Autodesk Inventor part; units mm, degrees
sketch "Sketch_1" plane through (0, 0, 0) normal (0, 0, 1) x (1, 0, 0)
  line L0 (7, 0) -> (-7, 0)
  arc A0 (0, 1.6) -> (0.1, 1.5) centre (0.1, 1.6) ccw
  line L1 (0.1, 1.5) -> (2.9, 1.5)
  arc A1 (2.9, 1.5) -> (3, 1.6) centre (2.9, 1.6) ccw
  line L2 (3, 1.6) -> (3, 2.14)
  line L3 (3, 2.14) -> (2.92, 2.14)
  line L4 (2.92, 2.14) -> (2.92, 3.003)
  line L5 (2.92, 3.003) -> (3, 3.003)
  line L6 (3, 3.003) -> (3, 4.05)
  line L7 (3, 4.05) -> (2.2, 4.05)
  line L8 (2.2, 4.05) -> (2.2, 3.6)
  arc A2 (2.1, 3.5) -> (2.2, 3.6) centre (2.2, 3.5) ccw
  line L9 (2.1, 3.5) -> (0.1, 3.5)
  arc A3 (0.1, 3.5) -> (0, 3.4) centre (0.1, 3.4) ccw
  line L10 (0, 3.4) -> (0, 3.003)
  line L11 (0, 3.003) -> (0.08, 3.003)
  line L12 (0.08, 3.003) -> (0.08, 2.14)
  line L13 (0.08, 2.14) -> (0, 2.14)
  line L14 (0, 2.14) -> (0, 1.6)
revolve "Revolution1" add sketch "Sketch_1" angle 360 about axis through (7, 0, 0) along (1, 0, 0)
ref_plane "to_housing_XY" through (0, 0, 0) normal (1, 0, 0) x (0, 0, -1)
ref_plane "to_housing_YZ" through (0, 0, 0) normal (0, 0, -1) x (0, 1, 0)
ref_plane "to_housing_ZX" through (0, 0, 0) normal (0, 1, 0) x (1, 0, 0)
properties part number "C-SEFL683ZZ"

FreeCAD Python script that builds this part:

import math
import FreeCAD as App
import Part
import Sketcher

V = App.Vector
Q = App.Units.Quantity

doc = App.newDocument("Part")
body = doc.addObject("PartDesign::Body", "Body")

# Sketch on XY plane
sketch1 = doc.addObject("Sketcher::SketchObject", "Sketch")
body.addObject(sketch1)
sketch1.AttachmentSupport = (doc.XY_Plane, [""])
sketch1.MapMode = "FlatFace"
sketch1.addGeometry(Part.LineSegment(V(0, 2.14, 0), V(0, 1.6, 0)), False)
sketch1.addGeometry(Part.ArcOfCircle(Part.Circle(V(0.1, 1.6, 0), V(0, 0, 1), 0.1), math.radians(180), math.radians(270)), False)
sketch1.addGeometry(Part.LineSegment(V(0.1, 1.5, 0), V(2.9, 1.5, 0)), False)
sketch1.addGeometry(Part.ArcOfCircle(Part.Circle(V(2.9, 1.6, 0), V(0, 0, 1), 0.1), math.radians(-90), math.radians(0)), False)
sketch1.addGeometry(Part.LineSegment(V(3, 1.6, 0), V(3, 2.14, 0)), False)
sketch1.addGeometry(Part.LineSegment(V(3, 2.14, 0), V(2.92, 2.14, 0)), False)
sketch1.addGeometry(Part.LineSegment(V(2.92, 2.14, 0), V(2.92, 3.003, 0)), False)
sketch1.addGeometry(Part.LineSegment(V(2.92, 3.003, 0), V(3, 3.003, 0)), False)
sketch1.addGeometry(Part.LineSegment(V(3, 3.003, 0), V(3, 4.05, 0)), False)
sketch1.addGeometry(Part.LineSegment(V(3, 4.05, 0), V(2.2, 4.05, 0)), False)
sketch1.addGeometry(Part.LineSegment(V(2.2, 4.05, 0), V(2.2, 3.6, 0)), False)
sketch1.addGeometry(Part.ArcOfCircle(Part.Circle(V(2.2, 3.5, 0), V(0, 0, 1), 0.1), math.radians(180), math.radians(450)), False)
sketch1.addGeometry(Part.LineSegment(V(2.1, 3.5, 0), V(0.1, 3.5, 0)), False)
sketch1.addGeometry(Part.ArcOfCircle(Part.Circle(V(0.1, 3.4, 0), V(0, 0, 1), 0.1), math.radians(90), math.radians(180)), False)
sketch1.addGeometry(Part.LineSegment(V(0, 3.4, 0), V(0, 3.003, 0)), False)
sketch1.addGeometry(Part.LineSegment(V(0, 3.003, 0), V(0.08, 3.003, 0)), False)
sketch1.addGeometry(Part.LineSegment(V(0.08, 3.003, 0), V(0.08, 2.14, 0)), False)
sketch1.addGeometry(Part.LineSegment(V(0.08, 2.14, 0), V(0, 2.14, 0)), False)
sketch1.addConstraint(Sketcher.Constraint("Tangent", 0, 2, 1, 1))
sketch1.addConstraint(Sketcher.Constraint("Tangent", 1, 2, 2, 1))
sketch1.addConstraint(Sketcher.Constraint("Tangent", 2, 2, 3, 1))
sketch1.addConstraint(Sketcher.Constraint("Tangent", 3, 2, 4, 1))
sketch1.addConstraint(Sketcher.Constraint("Coincident", 4, 2, 5, 1))
sketch1.addConstraint(Sketcher.Constraint("Coincident", 5, 2, 6, 1))
sketch1.addConstraint(Sketcher.Constraint("Coincident", 6, 2, 7, 1))
sketch1.addConstraint(Sketcher.Constraint("Coincident", 7, 2, 8, 1))
sketch1.addConstraint(Sketcher.Constraint("Coincident", 8, 2, 9, 1))
sketch1.addConstraint(Sketcher.Constraint("Coincident", 9, 2, 10, 1))
sketch1.addConstraint(Sketcher.Constraint("Coincident", 10, 2, 11, 2))
sketch1.addConstraint(Sketcher.Constraint("Coincident", 11, 1, 12, 1))
sketch1.addConstraint(Sketcher.Constraint("Tangent", 12, 2, 13, 1))
sketch1.addConstraint(Sketcher.Constraint("Tangent", 13, 2, 14, 1))
sketch1.addConstraint(Sketcher.Constraint("Coincident", 14, 2, 15, 1))
sketch1.addConstraint(Sketcher.Constraint("Coincident", 15, 2, 16, 1))
sketch1.addConstraint(Sketcher.Constraint("Coincident", 16, 2, 17, 1))
sketch1.addConstraint(Sketcher.Constraint("Coincident", 17, 2, 0, 1))
sketch1.addConstraint(Sketcher.Constraint("Vertical", 0))
sketch1.addConstraint(Sketcher.Constraint("Horizontal", 2))
sketch1.addConstraint(Sketcher.Constraint("Vertical", 4))
sketch1.addConstraint(Sketcher.Constraint("Horizontal", 5))
sketch1.addConstraint(Sketcher.Constraint("Vertical", 6))
sketch1.addConstraint(Sketcher.Constraint("Horizontal", 7))
sketch1.addConstraint(Sketcher.Constraint("Vertical", 8))
sketch1.addConstraint(Sketcher.Constraint("Horizontal", 9))
sketch1.addConstraint(Sketcher.Constraint("Vertical", 10))
sketch1.addConstraint(Sketcher.Constraint("Horizontal", 12))
sketch1.addConstraint(Sketcher.Constraint("Vertical", 14))
sketch1.addConstraint(Sketcher.Constraint("Horizontal", 15))
sketch1.addConstraint(Sketcher.Constraint("Vertical", 16))
sketch1.addConstraint(Sketcher.Constraint("Horizontal", 17))
sketch1.addConstraint(Sketcher.Constraint("Equal", 1, 3))
sketch1.addConstraint(Sketcher.Constraint("Equal", 3, 11))
sketch1.addConstraint(Sketcher.Constraint("Equal", 11, 13))
sketch1.addConstraint(Sketcher.Constraint("PointOnObject", 0, 2, -2))
sketch1.addConstraint(Sketcher.Constraint("PointOnObject", 13, 2, -2))
sketch1.addConstraint(Sketcher.Constraint("Horizontal", 7, 2, 14, 2))
sketch1.addConstraint(Sketcher.Constraint("Horizontal", 5, 2, 16, 2))
sketch1.addConstraint(Sketcher.Constraint("Vertical", 4, 2, 7, 2))
sketch1.addConstraint(Sketcher.Constraint("Vertical", 11, 3, 9, 2))
sketch1.addConstraint(Sketcher.Constraint("Equal", 7, 15))
sketch1.addConstraint(Sketcher.Constraint("Radius", 1, Q("0.1 mm")))
sketch1.addConstraint(Sketcher.Constraint("DistanceX", 12, 2, 12, 1, Q("2 mm")))
sketch1.addConstraint(Sketcher.Constraint("DistanceX", 2, 1, 2, 2, Q("2.8 mm")))
sketch1.addConstraint(Sketcher.Constraint("DistanceY", 1, 2, 11, 3, Q("2 mm")))
sketch1.addConstraint(Sketcher.Constraint("DistanceY", 1, 2, 12, 2, Q("2 mm")))
sketch1.addConstraint(Sketcher.Constraint("DistanceX", 5, 2, 5, 1, Q("0.08 mm")))
sketch1.addConstraint(Sketcher.Constraint("DistanceY", 0, 2, 0, 1, Q("0.54 mm")))
sketch1.addConstraint(Sketcher.Constraint("DistanceY", 10, 2, 10, 1, Q("0.45 mm")))
sketch1.addConstraint(Sketcher.Constraint("DistanceY", -1, 1, 1, 3, Q("1.6 mm")))
sketch1.addConstraint(Sketcher.Constraint("DistanceY", 6, 1, 6, 2, Q("0.863 mm")))
revolution = doc.addObject("PartDesign::Revolution", "Revolution")
body.addObject(revolution)
revolution.Profile = sketch1
revolution.ReferenceAxis = (sketch1, ["H_Axis"])
revolution.Angle = 360

doc.recompute()
